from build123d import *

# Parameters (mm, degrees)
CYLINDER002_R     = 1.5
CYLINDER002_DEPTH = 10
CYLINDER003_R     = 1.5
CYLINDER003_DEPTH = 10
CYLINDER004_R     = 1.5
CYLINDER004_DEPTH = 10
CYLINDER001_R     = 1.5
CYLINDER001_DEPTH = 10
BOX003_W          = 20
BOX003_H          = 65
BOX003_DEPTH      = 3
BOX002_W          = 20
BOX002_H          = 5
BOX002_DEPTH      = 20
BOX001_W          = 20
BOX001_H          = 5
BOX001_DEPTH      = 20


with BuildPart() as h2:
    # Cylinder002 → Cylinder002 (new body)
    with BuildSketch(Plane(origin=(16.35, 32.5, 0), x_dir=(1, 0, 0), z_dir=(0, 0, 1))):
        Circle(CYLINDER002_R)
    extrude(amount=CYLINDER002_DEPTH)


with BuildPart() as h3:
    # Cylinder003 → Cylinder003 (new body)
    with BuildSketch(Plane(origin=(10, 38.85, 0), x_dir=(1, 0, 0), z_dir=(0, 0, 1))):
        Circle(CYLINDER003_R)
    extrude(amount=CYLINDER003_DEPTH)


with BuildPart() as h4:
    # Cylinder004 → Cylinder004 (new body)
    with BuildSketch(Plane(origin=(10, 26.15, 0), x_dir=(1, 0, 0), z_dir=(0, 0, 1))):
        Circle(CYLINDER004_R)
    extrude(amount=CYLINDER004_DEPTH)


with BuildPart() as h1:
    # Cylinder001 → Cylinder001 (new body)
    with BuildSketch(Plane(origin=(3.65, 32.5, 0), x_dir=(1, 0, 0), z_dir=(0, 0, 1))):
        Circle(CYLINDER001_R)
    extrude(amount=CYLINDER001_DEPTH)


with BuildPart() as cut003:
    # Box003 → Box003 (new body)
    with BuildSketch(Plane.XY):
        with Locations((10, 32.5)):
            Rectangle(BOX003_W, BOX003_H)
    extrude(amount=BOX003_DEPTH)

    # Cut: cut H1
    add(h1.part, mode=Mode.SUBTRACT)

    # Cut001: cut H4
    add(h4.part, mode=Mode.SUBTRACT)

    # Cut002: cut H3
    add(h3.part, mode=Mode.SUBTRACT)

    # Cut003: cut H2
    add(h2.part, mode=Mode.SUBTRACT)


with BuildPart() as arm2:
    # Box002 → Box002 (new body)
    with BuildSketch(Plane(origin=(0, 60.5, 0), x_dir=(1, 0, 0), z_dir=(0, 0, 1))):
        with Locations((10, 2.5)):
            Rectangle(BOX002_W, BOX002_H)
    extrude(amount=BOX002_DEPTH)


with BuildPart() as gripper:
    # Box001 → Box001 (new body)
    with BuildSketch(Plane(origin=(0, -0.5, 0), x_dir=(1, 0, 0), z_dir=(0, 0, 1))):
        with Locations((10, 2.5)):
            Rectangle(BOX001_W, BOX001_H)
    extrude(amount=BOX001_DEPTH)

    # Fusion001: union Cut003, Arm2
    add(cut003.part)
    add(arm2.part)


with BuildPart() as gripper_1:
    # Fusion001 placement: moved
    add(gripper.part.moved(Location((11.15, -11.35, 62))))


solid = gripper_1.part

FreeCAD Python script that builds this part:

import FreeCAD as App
import Part
import Sketcher
from FreeCAD import Vector


def add_polygon(sketch, points):
    """Adds a closed chain of lines whose ends are joined by coincident constraints."""
    first, n = sketch.GeometryCount, len(points)
    for a, b in zip(points, points[1:] + points[:1]):
        sketch.addGeometry(Part.LineSegment(App.Vector(*a, 0), App.Vector(*b, 0)), False)
    for i in range(n):
        sketch.addConstraint(Sketcher.Constraint("Coincident", first + i, 2, first + (i + 1) % n, 1))

doc = App.newDocument("Part")
params = doc.addObject("Spreadsheet::Sheet", "Params")
for row, (alias, value) in enumerate([
    ("sketch1_diameter", "3 mm"),
    ("pad1_length", "10 mm"),
    ("sketch2_diameter", "3 mm"),
    ("pad2_length", "10 mm"),
    ("sketch3_diameter", "3 mm"),
    ("pad3_length", "10 mm"),
    ("sketch4_diameter", "3 mm"),
    ("pad4_length", "10 mm"),
    ("sketch5_width", "20 mm"),
    ("sketch5_height", "65 mm"),
    ("pad5_length", "3 mm"),
    ("sketch6_width", "20 mm"),
    ("sketch6_height", "5 mm"),
    ("pad6_length", "20 mm"),
    ("sketch7_width", "20 mm"),
    ("sketch7_height", "5 mm"),
    ("pad7_length", "20 mm"),
], start=1):
    params.set(f"A{row}", alias)
    params.set(f"B{row}", "=" + value)
    params.setAlias(f"B{row}", alias)

body = doc.addObject("PartDesign::Body", "Body")

# Sketch on XY plane
sketch1 = body.newObject("Sketcher::SketchObject", "Sketch")
sketch1.AttachmentSupport = (doc.getObject("XY_Plane"), [""])
sketch1.MapMode = "FlatFace"
sketch1.addGeometry(Part.Circle(Vector(16.4, 32.5, 0), Vector(0, 0, 1), 1.5), False)
sketch1.addConstraint(Sketcher.Constraint("Diameter", 0, 3.0))
sketch1.addConstraint(Sketcher.Constraint("DistanceY", -1, 1, 0, 3, 32.5))
sketch1.addConstraint(Sketcher.Constraint("DistanceX", -1, 1, 0, 3, 16.35))
sketch1.setExpression("Constraints[0]", "Params.sketch1_diameter")
pad1 = body.newObject("PartDesign::Pad", "Pad")
pad1.Profile = sketch1
pad1.setExpression("Length", "Params.pad1_length")
body2 = doc.addObject("PartDesign::Body", "Body001")

# Sketch on XY plane
sketch2 = body2.newObject("Sketcher::SketchObject", "Sketch001")
sketch2.AttachmentSupport = (doc.getObject("XY_Plane001"), [""])
sketch2.MapMode = "FlatFace"
sketch2.addGeometry(Part.Circle(Vector(10, 38.9, 0), Vector(0, 0, 1), 1.5), False)
sketch2.addConstraint(Sketcher.Constraint("Diameter", 0, 3.0))
sketch2.addConstraint(Sketcher.Constraint("DistanceX", -1, 1, 0, 3, 10.0))
sketch2.addConstraint(Sketcher.Constraint("DistanceY", -1, 1, 0, 3, 38.85))
sketch2.setExpression("Constraints[0]", "Params.sketch2_diameter")
pad2 = body2.newObject("PartDesign::Pad", "Pad001")
pad2.Profile = sketch2
pad2.setExpression("Length", "Params.pad2_length")
body3 = doc.addObject("PartDesign::Body", "Body002")

# Sketch on XY plane
sketch3 = body3.newObject("Sketcher::SketchObject", "Sketch002")
sketch3.AttachmentSupport = (doc.getObject("XY_Plane002"), [""])
sketch3.MapMode = "FlatFace"
sketch3.addGeometry(Part.Circle(Vector(10, 26.1, 0), Vector(0, 0, 1), 1.5), False)
sketch3.addConstraint(Sketcher.Constraint("Diameter", 0, 3.0))
sketch3.addConstraint(Sketcher.Constraint("DistanceX", -1, 1, 0, 3, 10.0))
sketch3.addConstraint(Sketcher.Constraint("DistanceY", -1, 1, 0, 3, 26.15))
sketch3.setExpression("Constraints[0]", "Params.sketch3_diameter")
pad3 = body3.newObject("PartDesign::Pad", "Pad002")
pad3.Profile = sketch3
pad3.setExpression("Length", "Params.pad3_length")
body4 = doc.addObject("PartDesign::Body", "Body003")

# Sketch on XY plane
sketch4 = body4.newObject("Sketcher::SketchObject", "Sketch003")
sketch4.AttachmentSupport = (doc.getObject("XY_Plane003"), [""])
sketch4.MapMode = "FlatFace"
sketch4.addGeometry(Part.Circle(Vector(3.6, 32.5, 0), Vector(0, 0, 1), 1.5), False)
sketch4.addConstraint(Sketcher.Constraint("Diameter", 0, 3.0))
sketch4.addConstraint(Sketcher.Constraint("DistanceY", -1, 1, 0, 3, 32.5))
sketch4.addConstraint(Sketcher.Constraint("DistanceX", -1, 1, 0, 3, 3.65))
sketch4.setExpression("Constraints[0]", "Params.sketch4_diameter")
pad4 = body4.newObject("PartDesign::Pad", "Pad003")
pad4.Profile = sketch4
pad4.setExpression("Length", "Params.pad4_length")
body5 = doc.addObject("PartDesign::Body", "Body004")

# Sketch on XY plane
sketch5 = body5.newObject("Sketcher::SketchObject", "Sketch004")
sketch5.AttachmentSupport = (doc.getObject("XY_Plane004"), [""])
sketch5.MapMode = "FlatFace"
add_polygon(sketch5, [(0, 65), (0, 0), (20, 0), (20, 65)])  # lines 0-3
sketch5.addConstraint(Sketcher.Constraint("Vertical", 0))
sketch5.addConstraint(Sketcher.Constraint("Horizontal", 1))
sketch5.addConstraint(Sketcher.Constraint("Vertical", 2))
sketch5.addConstraint(Sketcher.Constraint("Horizontal", 3))
sketch5.addConstraint(Sketcher.Constraint("Coincident", 0, 2, -1, 1))
sketch5.addConstraint(Sketcher.Constraint("DistanceX", 1, 1, 1, 2, 20.0))
sketch5.addConstraint(Sketcher.Constraint("DistanceY", 0, 2, 0, 1, 65.0))
sketch5.setExpression("Constraints[9]", "Params.sketch5_width")
sketch5.setExpression("Constraints[10]", "Params.sketch5_height")
pad5 = body5.newObject("PartDesign::Pad", "Pad004")
pad5.Profile = sketch5
pad5.setExpression("Length", "Params.pad5_length")
doc.recompute()

boolean = body5.newObject("PartDesign::Boolean", "Boolean")
boolean.Type = "Cut"
boolean.addObjects([body4])
doc.recompute()

boolean2 = body5.newObject("PartDesign::Boolean", "Boolean001")
boolean2.Type = "Cut"
boolean2.addObjects([body3])
doc.recompute()

boolean3 = body5.newObject("PartDesign::Boolean", "Boolean002")
boolean3.Type = "Cut"
boolean3.addObjects([body2])
doc.recompute()

boolean4 = body5.newObject("PartDesign::Boolean", "Boolean003")
boolean4.Type = "Cut"
boolean4.addObjects([body])
body6 = doc.addObject("PartDesign::Body", "Body005")

# Sketch on XY plane
sketch6 = body6.newObject("Sketcher::SketchObject", "Sketch005")
sketch6.AttachmentSupport = (doc.getObject("XY_Plane005"), [""])
sketch6.MapMode = "FlatFace"
add_polygon(sketch6, [(0, 66), (0, 60), (20, 60), (20, 66)])  # lines 0-3
sketch6.addConstraint(Sketcher.Constraint("Vertical", 0))
sketch6.addConstraint(Sketcher.Constraint("Horizontal", 1))
sketch6.addConstraint(Sketcher.Constraint("Vertical", 2))
sketch6.addConstraint(Sketcher.Constraint("Horizontal", 3))
sketch6.addConstraint(Sketcher.Constraint("PointOnObject", 0, 2, -2))
sketch6.addConstraint(Sketcher.Constraint("DistanceX", 1, 1, 1, 2, 20.0))
sketch6.addConstraint(Sketcher.Constraint("DistanceY", 0, 2, 0, 1, 5.0))
sketch6.addConstraint(Sketcher.Constraint("DistanceY", -1, 1, 0, 2, 60.5))
sketch6.setExpression("Constraints[9]", "Params.sketch6_width")
sketch6.setExpression("Constraints[10]", "Params.sketch6_height")
pad6 = body6.newObject("PartDesign::Pad", "Pad005")
pad6.Profile = sketch6
pad6.setExpression("Length", "Params.pad6_length")
body7 = doc.addObject("PartDesign::Body", "Body006")

# Sketch on XY plane
sketch7 = body7.newObject("Sketcher::SketchObject", "Sketch006")
sketch7.AttachmentSupport = (doc.getObject("XY_Plane006"), [""])
sketch7.MapMode = "FlatFace"
add_polygon(sketch7, [(0, 4), (0, 0), (20, 0), (20, 4)])  # lines 0-3
sketch7.addConstraint(Sketcher.Constraint("Vertical", 0))
sketch7.addConstraint(Sketcher.Constraint("Horizontal", 1))
sketch7.addConstraint(Sketcher.Constraint("Vertical", 2))
sketch7.addConstraint(Sketcher.Constraint("Horizontal", 3))
sketch7.addConstraint(Sketcher.Constraint("PointOnObject", 0, 2, -2))
sketch7.addConstraint(Sketcher.Constraint("DistanceX", 1, 1, 1, 2, 20.0))
sketch7.addConstraint(Sketcher.Constraint("DistanceY", 0, 2, 0, 1, 5.0))
sketch7.addConstraint(Sketcher.Constraint("DistanceY", 0, 2, -1, 1, 0.5))
sketch7.setExpression("Constraints[9]", "Params.sketch7_width")
sketch7.setExpression("Constraints[10]", "Params.sketch7_height")
pad7 = body7.newObject("PartDesign::Pad", "Pad006")
pad7.Profile = sketch7
pad7.setExpression("Length", "Params.pad7_length")
doc.recompute()

boolean5 = body7.newObject("PartDesign::Boolean", "Boolean004")
boolean5.Type = "Fuse"
boolean5.addObjects([body5])
doc.recompute()

boolean6 = body7.newObject("PartDesign::Boolean", "Boolean005")
boolean6.Type = "Fuse"
boolean6.addObjects([body6])
body8 = doc.addObject("PartDesign::Body", "Body007")
doc.recompute()

body7.Placement = App.Placement(Vector(11.15, -11.35, 62), App.Rotation(Vector(0, 0, 1), 0))
boolean7 = body8.newObject("PartDesign::Boolean", "Boolean006")
boolean7.Type = "Fuse"
boolean7.addObjects([body7])

doc.recompute()
